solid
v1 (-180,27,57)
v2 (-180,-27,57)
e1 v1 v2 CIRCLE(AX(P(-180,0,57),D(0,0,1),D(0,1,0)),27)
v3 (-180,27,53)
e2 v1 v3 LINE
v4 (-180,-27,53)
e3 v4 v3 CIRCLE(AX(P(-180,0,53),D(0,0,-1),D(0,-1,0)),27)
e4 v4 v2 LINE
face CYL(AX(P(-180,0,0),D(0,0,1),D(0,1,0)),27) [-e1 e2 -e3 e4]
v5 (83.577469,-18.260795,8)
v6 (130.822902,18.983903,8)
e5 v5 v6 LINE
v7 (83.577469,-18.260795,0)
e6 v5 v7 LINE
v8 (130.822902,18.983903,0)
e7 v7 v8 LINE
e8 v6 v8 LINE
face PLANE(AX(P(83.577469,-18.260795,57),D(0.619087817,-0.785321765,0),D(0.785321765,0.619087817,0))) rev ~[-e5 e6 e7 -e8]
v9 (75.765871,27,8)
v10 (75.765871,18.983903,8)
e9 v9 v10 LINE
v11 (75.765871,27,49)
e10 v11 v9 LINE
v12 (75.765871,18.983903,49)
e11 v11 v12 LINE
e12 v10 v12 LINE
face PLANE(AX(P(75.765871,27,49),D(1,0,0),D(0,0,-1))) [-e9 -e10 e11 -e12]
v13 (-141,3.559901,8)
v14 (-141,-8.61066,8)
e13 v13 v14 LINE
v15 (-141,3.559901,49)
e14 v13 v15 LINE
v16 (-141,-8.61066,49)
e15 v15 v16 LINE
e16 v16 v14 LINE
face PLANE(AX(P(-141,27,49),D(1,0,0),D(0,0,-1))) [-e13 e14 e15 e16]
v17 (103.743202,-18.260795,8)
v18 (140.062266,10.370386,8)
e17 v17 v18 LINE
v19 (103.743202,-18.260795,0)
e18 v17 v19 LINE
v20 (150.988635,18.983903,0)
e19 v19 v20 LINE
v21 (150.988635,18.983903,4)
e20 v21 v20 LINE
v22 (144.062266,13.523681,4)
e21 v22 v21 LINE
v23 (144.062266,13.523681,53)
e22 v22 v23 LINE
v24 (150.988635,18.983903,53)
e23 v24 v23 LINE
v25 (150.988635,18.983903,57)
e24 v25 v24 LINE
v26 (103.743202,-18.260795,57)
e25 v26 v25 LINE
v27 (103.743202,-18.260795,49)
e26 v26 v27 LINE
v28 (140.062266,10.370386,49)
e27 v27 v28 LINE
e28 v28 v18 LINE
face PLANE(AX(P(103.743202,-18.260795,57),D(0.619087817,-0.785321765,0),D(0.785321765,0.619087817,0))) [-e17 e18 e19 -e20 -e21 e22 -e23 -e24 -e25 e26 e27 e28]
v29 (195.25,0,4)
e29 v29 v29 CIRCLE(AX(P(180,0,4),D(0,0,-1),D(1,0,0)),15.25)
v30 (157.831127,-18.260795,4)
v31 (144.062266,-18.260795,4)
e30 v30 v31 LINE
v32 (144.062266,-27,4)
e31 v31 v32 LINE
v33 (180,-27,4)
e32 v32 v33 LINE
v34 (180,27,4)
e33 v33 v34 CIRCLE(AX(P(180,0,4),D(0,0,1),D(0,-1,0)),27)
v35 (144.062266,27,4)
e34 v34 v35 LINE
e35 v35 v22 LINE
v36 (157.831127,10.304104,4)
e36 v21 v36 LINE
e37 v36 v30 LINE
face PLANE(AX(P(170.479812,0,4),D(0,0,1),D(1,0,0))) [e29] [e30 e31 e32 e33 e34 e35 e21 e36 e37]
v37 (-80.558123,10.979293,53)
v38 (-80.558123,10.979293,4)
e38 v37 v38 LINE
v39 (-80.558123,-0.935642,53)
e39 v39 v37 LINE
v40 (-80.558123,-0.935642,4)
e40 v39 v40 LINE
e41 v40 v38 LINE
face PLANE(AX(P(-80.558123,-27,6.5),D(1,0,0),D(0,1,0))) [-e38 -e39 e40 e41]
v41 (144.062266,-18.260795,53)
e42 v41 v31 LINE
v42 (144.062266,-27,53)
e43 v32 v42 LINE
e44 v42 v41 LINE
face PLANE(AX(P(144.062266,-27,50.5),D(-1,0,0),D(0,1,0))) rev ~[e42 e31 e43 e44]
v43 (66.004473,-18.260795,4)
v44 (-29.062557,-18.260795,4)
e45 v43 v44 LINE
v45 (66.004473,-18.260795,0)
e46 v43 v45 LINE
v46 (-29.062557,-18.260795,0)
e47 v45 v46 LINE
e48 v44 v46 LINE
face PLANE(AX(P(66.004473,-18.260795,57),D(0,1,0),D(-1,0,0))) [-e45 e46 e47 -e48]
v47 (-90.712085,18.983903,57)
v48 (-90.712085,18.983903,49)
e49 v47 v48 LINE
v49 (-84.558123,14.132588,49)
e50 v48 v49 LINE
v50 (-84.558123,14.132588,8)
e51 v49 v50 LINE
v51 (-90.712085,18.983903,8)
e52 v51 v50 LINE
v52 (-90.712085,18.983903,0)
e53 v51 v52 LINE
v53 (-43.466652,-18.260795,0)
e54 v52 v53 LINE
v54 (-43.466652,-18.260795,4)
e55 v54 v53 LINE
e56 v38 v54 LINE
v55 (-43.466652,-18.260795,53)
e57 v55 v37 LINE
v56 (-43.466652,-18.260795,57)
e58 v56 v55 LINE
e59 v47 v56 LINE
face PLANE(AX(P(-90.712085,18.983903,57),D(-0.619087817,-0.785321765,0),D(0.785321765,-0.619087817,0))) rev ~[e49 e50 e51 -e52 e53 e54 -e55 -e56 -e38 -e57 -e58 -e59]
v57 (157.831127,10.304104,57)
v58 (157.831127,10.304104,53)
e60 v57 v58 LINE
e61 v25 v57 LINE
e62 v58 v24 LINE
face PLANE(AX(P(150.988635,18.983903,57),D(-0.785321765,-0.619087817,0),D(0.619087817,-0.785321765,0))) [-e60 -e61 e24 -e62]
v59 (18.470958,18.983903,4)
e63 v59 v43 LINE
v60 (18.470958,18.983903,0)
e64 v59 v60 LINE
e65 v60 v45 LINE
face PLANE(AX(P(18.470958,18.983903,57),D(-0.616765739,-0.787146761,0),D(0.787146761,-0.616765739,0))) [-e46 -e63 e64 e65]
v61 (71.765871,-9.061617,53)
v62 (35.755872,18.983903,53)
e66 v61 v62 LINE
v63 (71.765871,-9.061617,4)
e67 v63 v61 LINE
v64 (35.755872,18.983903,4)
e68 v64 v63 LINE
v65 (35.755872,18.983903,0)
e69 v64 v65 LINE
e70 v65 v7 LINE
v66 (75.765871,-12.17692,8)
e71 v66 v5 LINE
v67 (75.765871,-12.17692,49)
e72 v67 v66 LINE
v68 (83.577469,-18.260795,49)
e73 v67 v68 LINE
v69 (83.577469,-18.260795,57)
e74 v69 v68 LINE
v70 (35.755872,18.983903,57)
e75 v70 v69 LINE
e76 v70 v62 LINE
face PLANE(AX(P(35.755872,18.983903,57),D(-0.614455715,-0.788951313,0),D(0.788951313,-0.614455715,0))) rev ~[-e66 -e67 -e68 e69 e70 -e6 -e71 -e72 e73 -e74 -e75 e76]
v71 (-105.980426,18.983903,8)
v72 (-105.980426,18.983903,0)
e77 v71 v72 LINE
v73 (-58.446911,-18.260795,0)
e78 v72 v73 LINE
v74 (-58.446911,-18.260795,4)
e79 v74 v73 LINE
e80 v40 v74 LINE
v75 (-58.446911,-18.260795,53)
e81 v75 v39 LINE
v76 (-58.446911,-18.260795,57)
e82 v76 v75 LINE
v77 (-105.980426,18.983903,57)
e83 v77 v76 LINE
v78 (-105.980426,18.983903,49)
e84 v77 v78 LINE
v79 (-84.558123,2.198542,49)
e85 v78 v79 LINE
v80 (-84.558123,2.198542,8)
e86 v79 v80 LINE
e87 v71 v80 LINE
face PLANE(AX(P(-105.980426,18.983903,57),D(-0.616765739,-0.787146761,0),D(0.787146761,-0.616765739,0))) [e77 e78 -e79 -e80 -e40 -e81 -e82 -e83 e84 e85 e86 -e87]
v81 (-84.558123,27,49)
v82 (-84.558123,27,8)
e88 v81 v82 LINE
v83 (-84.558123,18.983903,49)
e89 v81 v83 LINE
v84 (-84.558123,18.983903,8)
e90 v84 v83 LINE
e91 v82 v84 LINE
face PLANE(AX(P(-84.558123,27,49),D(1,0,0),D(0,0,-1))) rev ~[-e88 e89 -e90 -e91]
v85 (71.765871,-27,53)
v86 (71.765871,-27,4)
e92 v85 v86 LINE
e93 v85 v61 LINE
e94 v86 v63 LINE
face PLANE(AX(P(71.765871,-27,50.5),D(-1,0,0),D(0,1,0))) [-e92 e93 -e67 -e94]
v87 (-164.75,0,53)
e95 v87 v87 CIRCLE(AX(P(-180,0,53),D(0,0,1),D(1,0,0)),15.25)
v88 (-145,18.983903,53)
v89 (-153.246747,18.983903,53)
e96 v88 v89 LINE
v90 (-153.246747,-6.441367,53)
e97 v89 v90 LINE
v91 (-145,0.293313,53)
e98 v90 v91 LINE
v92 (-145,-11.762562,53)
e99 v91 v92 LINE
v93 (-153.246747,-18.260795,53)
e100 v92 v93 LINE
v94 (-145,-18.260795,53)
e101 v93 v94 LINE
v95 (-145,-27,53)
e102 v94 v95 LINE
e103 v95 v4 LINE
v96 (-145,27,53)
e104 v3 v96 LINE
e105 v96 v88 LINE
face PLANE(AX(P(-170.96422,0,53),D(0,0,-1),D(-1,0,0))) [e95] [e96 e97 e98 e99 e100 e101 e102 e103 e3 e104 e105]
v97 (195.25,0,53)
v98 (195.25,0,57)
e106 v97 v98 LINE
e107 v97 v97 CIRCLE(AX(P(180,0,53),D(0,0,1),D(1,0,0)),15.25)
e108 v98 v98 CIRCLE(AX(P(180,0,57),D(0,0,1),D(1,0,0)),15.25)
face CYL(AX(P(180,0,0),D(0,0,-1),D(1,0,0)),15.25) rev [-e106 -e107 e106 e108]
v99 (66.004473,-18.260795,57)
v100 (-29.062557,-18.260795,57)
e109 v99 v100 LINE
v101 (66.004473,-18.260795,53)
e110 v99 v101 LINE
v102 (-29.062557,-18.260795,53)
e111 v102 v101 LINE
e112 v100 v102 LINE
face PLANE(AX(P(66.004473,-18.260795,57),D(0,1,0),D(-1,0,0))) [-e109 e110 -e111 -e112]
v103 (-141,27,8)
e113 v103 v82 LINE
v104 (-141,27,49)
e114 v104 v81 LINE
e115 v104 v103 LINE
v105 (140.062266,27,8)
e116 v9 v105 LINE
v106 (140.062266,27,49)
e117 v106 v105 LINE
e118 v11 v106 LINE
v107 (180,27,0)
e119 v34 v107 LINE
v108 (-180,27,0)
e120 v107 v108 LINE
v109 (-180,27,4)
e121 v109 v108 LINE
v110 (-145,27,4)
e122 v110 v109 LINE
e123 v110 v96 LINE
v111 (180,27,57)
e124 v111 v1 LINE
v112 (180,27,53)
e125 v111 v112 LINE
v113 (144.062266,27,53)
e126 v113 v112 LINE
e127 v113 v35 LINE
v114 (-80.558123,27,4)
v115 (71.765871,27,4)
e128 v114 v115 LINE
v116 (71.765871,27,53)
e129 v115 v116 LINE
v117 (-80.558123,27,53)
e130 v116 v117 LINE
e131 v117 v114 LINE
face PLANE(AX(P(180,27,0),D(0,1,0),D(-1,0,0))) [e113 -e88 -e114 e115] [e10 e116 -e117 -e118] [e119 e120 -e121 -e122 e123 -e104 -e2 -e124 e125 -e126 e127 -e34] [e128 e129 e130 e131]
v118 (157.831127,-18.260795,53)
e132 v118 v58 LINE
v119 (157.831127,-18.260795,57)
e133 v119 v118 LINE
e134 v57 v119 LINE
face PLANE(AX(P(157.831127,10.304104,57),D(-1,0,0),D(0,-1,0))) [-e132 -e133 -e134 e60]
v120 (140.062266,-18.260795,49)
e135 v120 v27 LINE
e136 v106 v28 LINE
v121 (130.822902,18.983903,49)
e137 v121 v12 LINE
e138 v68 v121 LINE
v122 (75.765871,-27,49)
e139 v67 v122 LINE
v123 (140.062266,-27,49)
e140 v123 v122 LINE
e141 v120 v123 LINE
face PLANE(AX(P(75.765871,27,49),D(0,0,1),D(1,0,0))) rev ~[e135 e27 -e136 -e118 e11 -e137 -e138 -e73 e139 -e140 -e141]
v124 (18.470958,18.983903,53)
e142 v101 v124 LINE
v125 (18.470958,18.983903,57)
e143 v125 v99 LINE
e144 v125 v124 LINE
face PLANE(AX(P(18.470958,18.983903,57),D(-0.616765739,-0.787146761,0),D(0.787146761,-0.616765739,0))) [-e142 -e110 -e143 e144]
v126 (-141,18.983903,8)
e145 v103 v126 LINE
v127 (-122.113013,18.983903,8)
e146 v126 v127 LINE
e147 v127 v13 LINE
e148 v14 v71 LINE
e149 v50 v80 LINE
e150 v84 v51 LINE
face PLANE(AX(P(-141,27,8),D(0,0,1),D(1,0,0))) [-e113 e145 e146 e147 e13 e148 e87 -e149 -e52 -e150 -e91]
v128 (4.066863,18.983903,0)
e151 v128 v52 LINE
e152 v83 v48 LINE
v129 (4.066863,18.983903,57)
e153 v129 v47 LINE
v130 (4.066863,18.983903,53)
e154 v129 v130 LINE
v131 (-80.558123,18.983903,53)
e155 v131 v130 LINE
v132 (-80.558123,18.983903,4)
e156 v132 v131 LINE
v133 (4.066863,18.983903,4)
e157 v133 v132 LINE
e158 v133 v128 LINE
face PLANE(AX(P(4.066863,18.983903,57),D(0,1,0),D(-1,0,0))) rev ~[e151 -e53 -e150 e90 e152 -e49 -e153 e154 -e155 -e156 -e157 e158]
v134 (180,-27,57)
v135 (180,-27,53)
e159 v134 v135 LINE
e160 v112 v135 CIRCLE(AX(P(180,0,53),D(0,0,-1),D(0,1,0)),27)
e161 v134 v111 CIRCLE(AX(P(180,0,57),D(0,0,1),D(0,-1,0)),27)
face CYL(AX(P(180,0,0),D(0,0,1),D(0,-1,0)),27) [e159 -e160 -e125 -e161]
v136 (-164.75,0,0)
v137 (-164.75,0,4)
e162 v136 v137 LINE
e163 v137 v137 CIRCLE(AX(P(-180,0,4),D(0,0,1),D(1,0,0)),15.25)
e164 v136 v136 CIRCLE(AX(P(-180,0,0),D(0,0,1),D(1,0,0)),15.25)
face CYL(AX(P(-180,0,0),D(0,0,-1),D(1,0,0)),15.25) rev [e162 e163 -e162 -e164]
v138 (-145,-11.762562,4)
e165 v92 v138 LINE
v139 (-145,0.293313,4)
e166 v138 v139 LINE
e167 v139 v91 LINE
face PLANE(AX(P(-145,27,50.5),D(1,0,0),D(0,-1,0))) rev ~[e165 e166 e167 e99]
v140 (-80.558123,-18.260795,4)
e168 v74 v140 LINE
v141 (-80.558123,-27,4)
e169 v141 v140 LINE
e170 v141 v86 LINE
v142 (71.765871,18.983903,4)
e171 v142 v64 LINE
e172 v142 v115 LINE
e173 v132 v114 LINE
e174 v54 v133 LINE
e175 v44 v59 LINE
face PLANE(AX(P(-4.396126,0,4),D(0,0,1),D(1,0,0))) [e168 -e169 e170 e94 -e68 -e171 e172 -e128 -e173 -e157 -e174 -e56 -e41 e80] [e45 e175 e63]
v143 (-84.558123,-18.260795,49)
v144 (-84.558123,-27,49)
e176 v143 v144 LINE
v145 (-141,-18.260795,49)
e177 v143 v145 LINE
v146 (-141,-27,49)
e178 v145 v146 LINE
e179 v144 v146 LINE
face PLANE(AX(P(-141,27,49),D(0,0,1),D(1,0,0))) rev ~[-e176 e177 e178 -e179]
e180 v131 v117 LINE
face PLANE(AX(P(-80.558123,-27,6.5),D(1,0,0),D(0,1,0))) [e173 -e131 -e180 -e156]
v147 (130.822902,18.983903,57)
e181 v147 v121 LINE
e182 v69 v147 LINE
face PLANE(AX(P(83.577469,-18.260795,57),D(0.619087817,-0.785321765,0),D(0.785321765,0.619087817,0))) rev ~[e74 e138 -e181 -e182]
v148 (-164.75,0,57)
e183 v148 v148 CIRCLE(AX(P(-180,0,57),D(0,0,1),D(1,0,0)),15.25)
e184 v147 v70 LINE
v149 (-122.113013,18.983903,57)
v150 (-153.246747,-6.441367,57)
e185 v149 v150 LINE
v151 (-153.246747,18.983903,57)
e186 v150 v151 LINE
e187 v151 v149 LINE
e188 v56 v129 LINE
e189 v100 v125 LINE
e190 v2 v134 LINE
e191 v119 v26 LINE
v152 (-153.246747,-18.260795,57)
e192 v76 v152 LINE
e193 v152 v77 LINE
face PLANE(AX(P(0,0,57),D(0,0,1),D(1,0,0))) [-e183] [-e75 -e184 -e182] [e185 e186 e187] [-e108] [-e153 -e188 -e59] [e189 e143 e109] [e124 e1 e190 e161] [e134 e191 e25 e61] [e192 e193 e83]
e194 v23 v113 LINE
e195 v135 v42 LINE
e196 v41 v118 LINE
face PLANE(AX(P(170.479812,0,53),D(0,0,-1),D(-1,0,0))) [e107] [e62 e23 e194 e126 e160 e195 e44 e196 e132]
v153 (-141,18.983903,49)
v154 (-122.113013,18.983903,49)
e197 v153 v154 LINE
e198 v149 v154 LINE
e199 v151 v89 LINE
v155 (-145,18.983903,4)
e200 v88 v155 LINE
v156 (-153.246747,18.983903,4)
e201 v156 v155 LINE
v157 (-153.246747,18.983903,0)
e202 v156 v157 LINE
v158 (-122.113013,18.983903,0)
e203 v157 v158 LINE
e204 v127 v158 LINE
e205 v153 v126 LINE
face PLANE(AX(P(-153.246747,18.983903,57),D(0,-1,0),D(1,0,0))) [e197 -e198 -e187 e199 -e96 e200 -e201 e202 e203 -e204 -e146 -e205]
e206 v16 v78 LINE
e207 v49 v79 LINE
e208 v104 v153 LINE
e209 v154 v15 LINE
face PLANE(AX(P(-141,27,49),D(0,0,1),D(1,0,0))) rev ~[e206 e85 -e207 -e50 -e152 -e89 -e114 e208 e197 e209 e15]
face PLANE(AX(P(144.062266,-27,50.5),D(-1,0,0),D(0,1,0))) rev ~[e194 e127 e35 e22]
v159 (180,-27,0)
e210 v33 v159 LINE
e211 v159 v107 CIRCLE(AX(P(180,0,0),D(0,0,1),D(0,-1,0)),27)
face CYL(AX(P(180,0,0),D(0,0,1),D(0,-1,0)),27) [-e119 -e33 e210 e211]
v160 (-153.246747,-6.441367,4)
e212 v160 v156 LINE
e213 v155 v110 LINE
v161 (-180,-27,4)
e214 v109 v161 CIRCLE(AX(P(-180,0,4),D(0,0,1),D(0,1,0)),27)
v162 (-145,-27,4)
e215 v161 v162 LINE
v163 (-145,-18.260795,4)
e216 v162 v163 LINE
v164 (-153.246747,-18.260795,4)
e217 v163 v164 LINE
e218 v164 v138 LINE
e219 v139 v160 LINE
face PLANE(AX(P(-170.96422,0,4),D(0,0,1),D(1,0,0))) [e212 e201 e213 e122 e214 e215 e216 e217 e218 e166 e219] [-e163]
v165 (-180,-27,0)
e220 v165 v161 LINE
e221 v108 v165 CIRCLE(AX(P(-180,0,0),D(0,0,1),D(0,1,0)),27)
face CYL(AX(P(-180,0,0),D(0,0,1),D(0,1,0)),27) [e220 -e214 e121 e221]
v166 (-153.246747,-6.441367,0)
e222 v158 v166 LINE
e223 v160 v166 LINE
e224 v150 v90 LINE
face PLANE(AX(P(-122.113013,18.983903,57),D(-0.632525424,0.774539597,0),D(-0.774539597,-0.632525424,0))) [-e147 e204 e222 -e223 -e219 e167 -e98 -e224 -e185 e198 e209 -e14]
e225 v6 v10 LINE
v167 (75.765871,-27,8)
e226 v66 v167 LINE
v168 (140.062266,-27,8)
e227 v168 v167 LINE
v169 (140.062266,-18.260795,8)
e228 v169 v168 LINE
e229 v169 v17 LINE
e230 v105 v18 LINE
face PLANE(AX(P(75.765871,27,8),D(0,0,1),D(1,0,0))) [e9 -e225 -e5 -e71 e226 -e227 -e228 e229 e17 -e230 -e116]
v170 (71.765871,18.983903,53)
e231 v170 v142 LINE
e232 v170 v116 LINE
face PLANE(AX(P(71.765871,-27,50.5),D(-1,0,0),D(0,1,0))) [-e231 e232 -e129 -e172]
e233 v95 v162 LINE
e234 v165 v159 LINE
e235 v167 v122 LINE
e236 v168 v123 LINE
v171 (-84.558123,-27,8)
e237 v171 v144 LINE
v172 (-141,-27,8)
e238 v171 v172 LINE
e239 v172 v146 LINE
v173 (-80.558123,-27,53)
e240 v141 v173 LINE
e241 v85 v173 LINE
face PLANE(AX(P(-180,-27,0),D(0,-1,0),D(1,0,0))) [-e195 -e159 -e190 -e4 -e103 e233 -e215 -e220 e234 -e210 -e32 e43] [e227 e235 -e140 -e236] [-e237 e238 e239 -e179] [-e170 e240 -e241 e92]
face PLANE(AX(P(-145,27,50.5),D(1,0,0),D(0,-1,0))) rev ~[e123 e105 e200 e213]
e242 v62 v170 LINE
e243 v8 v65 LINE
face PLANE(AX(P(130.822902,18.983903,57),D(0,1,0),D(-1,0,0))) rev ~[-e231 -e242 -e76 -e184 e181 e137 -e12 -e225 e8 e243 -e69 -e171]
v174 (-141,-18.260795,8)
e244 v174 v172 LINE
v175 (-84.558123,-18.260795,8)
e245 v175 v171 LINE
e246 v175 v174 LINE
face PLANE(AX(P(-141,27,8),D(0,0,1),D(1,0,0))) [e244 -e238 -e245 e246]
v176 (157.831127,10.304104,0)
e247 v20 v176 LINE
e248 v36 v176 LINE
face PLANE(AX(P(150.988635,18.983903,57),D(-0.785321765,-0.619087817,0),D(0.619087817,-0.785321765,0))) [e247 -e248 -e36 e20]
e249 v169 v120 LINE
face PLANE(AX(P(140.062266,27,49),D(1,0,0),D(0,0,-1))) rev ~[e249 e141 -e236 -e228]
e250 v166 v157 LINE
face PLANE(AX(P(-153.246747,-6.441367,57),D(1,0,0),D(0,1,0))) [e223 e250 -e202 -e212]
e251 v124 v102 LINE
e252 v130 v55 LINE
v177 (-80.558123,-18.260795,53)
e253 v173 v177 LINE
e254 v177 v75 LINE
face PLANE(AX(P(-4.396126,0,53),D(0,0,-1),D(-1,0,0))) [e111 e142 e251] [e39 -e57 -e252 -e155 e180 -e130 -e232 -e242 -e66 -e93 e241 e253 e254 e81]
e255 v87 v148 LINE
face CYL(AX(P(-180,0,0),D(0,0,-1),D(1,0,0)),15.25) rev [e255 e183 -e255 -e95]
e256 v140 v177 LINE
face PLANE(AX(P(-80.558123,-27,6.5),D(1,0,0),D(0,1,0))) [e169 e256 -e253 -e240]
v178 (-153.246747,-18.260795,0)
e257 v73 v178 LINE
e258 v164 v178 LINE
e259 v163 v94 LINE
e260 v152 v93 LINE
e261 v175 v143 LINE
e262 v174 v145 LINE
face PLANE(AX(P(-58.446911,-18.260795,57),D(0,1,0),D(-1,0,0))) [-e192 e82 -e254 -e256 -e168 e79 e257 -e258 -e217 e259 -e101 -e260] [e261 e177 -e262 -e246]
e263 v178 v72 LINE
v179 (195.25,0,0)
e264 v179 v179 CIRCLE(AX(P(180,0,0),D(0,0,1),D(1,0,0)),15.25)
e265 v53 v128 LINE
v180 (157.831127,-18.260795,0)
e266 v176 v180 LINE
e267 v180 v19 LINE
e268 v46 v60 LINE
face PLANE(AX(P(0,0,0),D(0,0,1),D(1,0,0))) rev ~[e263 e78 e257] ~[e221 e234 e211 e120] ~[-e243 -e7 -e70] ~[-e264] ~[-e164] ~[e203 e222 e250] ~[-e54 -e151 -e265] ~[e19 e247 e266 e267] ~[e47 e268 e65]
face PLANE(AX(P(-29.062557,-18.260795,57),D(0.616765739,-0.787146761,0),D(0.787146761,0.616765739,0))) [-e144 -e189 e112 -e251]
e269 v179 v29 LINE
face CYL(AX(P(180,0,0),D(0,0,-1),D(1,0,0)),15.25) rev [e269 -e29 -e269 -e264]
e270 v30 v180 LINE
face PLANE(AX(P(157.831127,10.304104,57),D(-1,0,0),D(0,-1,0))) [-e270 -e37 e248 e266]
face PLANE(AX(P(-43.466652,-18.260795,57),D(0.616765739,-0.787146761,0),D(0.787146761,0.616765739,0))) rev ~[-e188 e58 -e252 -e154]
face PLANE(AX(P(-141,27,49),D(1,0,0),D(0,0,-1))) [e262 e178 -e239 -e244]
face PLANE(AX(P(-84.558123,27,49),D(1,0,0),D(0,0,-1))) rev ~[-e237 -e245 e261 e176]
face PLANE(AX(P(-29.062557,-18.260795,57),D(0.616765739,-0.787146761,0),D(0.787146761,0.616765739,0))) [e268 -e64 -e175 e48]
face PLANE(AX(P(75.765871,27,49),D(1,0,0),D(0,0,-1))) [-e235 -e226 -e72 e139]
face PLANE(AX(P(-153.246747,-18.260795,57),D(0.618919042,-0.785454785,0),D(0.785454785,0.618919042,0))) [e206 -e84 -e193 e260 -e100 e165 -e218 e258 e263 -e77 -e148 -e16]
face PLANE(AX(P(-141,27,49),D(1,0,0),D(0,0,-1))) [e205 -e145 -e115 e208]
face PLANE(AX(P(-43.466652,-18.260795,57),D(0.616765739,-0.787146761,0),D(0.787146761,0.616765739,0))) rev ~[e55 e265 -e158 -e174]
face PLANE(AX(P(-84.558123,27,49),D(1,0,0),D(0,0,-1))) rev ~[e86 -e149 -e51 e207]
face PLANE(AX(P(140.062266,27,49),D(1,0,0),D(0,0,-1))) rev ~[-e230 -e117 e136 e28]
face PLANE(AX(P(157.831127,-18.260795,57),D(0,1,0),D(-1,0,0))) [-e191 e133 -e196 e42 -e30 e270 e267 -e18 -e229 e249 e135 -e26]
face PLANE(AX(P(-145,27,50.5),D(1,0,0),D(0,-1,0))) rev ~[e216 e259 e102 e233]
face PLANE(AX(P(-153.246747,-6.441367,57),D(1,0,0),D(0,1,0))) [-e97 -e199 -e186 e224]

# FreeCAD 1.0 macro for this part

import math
import FreeCAD as App
import Part
import Sketcher

V = App.Vector
Q = App.Units.Quantity

doc = App.newDocument("Part")
body = doc.addObject("PartDesign::Body", "Body")

# Sketch on XY plane
sketch1 = body.newObject("Sketcher::SketchObject", "Sketch")
sketch1.AttachmentSupport = (doc.getObject("XY_Plane"), [""])
sketch1.MapMode = "FlatFace"
sketch1.addGeometry(Part.LineSegment(V(-180, -35, 0), V(180, -35, 0)), False)
sketch1.addGeometry(Part.ArcOfCircle(Part.Circle(V(180, 0, 0), V(0, 0, 1), 35), math.radians(-90), math.radians(90)), False)
sketch1.addGeometry(Part.LineSegment(V(180, 35, 0), V(-180, 35, 0)), False)
sketch1.addGeometry(Part.ArcOfCircle(Part.Circle(V(-180, 0, 0), V(0, 0, 1), 35), math.radians(90), math.radians(270)), False)
sketch1.addGeometry(Part.Circle(V(-180, 0, 0), V(0, 0, 1), 15), False)
sketch1.addGeometry(Part.Circle(V(180, 0, 0), V(0, 0, 1), 15), False)
sketch1.addConstraint(Sketcher.Constraint("Tangent", 0, 2, 1, 1))
sketch1.addConstraint(Sketcher.Constraint("Tangent", 1, 2, 2, 1))
sketch1.addConstraint(Sketcher.Constraint("Tangent", 2, 2, 3, 1))
sketch1.addConstraint(Sketcher.Constraint("Tangent", 3, 2, 0, 1))
sketch1.addConstraint(Sketcher.Constraint("Horizontal", 0))
sketch1.addConstraint(Sketcher.Constraint("Horizontal", 2))
sketch1.addConstraint(Sketcher.Constraint("Coincident", 4, 3, 3, 3))
sketch1.addConstraint(Sketcher.Constraint("Coincident", 5, 3, 1, 3))
sketch1.addConstraint(Sketcher.Constraint("Equal", 4, 5))
sketch1.addConstraint(Sketcher.Constraint("Symmetric", 1, 3, 3, 3, -1, 1))
sketch1.addConstraint(Sketcher.Constraint("Radius", 1, Q("35 mm")))
sketch1.addConstraint(Sketcher.Constraint("Diameter", 4, Q("30.5 mm")))
sketch1.addConstraint(Sketcher.Constraint("DistanceX", 0, 1, 0, 2, Q("360 mm")))
pad1 = body.newObject("PartDesign::Pad", "Pad")
pad1.Profile = sketch1
pad1.Length = 57

# Sketch on XZ plane
sketch2 = body.newObject("Sketcher::SketchObject", "Sketch001")
sketch2.AttachmentSupport = (doc.getObject("XZ_Plane"), [""])
sketch2.MapMode = "FlatFace"
sketch2.addGeometry(Part.LineSegment(V(-215, 6, 0), V(-215, 50, 0)), False)
sketch2.addGeometry(Part.LineSegment(V(-215, 50, 0), V(-145, 50, 0)), False)
sketch2.addGeometry(Part.LineSegment(V(-145, 50, 0), V(-145, 6, 0)), False)
sketch2.addGeometry(Part.LineSegment(V(-145, 6, 0), V(-215, 6, 0)), False)
sketch2.addGeometry(Part.LineSegment(V(144, 6, 0), V(144, 50, 0)), False)
sketch2.addGeometry(Part.LineSegment(V(144, 50, 0), V(214, 50, 0)), False)
sketch2.addGeometry(Part.LineSegment(V(214, 50, 0), V(214, 6, 0)), False)
sketch2.addGeometry(Part.LineSegment(V(214, 6, 0), V(144, 6, 0)), False)
sketch2.addGeometry(Part.LineSegment(V(-81, 6, 0), V(-81, 50, 0)), False)
sketch2.addGeometry(Part.LineSegment(V(-81, 50, 0), V(72, 50, 0)), False)
sketch2.addGeometry(Part.LineSegment(V(72, 50, 0), V(72, 6, 0)), False)
sketch2.addGeometry(Part.LineSegment(V(72, 6, 0), V(-81, 6, 0)), False)
sketch2.addConstraint(Sketcher.Constraint("Coincident", 0, 2, 1, 1))
sketch2.addConstraint(Sketcher.Constraint("Coincident", 1, 2, 2, 1))
sketch2.addConstraint(Sketcher.Constraint("Coincident", 2, 2, 3, 1))
sketch2.addConstraint(Sketcher.Constraint("Coincident", 3, 2, 0, 1))
sketch2.addConstraint(Sketcher.Constraint("Coincident", 4, 2, 5, 1))
sketch2.addConstraint(Sketcher.Constraint("Coincident", 5, 2, 6, 1))
sketch2.addConstraint(Sketcher.Constraint("Coincident", 6, 2, 7, 1))
sketch2.addConstraint(Sketcher.Constraint("Coincident", 7, 2, 4, 1))
sketch2.addConstraint(Sketcher.Constraint("Coincident", 8, 2, 9, 1))
sketch2.addConstraint(Sketcher.Constraint("Coincident", 9, 2, 10, 1))
sketch2.addConstraint(Sketcher.Constraint("Coincident", 10, 2, 11, 1))
sketch2.addConstraint(Sketcher.Constraint("Coincident", 11, 2, 8, 1))
sketch2.addConstraint(Sketcher.Constraint("Vertical", 0))
sketch2.addConstraint(Sketcher.Constraint("Horizontal", 1))
sketch2.addConstraint(Sketcher.Constraint("Vertical", 2))
sketch2.addConstraint(Sketcher.Constraint("Horizontal", 3))
sketch2.addConstraint(Sketcher.Constraint("Vertical", 4))
sketch2.addConstraint(Sketcher.Constraint("Horizontal", 5))
sketch2.addConstraint(Sketcher.Constraint("Vertical", 6))
sketch2.addConstraint(Sketcher.Constraint("Horizontal", 7))
sketch2.addConstraint(Sketcher.Constraint("Vertical", 8))
sketch2.addConstraint(Sketcher.Constraint("Horizontal", 9))
sketch2.addConstraint(Sketcher.Constraint("Vertical", 10))
sketch2.addConstraint(Sketcher.Constraint("Horizontal", 11))
sketch2.addConstraint(Sketcher.Constraint("Horizontal", 1, 2, 4, 2))
sketch2.addConstraint(Sketcher.Constraint("Horizontal", 3, 2, 6, 2))
sketch2.addConstraint(Sketcher.Constraint("Horizontal", 5, 2, 8, 2))
sketch2.addConstraint(Sketcher.Constraint("Horizontal", 7, 2, 10, 2))
sketch2.addConstraint(Sketcher.Constraint("Equal", 3, 5))
sketch2.addConstraint(Sketcher.Constraint("DistanceX", 1, 1, 1, 2, Q("70 mm")))
sketch2.addConstraint(Sketcher.Constraint("DistanceY", 0, 1, 0, 2, Q("44 mm")))
sketch2.addConstraint(Sketcher.Constraint("DistanceX", 0, 2, -1, 1, Q("215 mm")))
sketch2.addConstraint(Sketcher.Constraint("DistanceY", -1, 1, 0, 2, Q("50.5 mm")))
sketch2.addConstraint(Sketcher.Constraint("DistanceX", 9, 1, 9, 2, Q("152.323994 mm")))
sketch2.addConstraint(Sketcher.Constraint("DistanceX", -1, 1, 9, 2, Q("71.765871 mm")))
sketch2.addConstraint(Sketcher.Constraint("DistanceX", 8, 2, 4, 2, Q("224.620389 mm")))
pocket1 = body.newObject("PartDesign::Pocket", "Pocket")
pocket1.Profile = sketch2
pocket1.Length = 80
pocket1.Midplane = True

# Sketch on XY plane
sketch3 = body.newObject("Sketcher::SketchObject", "Sketch002")
sketch3.AttachmentSupport = (doc.getObject("XY_Plane"), [""])
sketch3.MapMode = "FlatFace"
sketch3.addGeometry(Part.LineSegment(V(-180, -35, 0), V(180, -35, 0)), False)
sketch3.addGeometry(Part.ArcOfCircle(Part.Circle(V(180, 0, 0), V(0, 0, 1), 35), math.radians(-90), math.radians(90)), False)
sketch3.addGeometry(Part.LineSegment(V(180, 35, 0), V(-180, 35, 0)), False)
sketch3.addGeometry(Part.ArcOfCircle(Part.Circle(V(-180, 0, 0), V(0, 0, 1), 35), math.radians(90), math.radians(270)), False)
sketch3.addGeometry(Part.LineSegment(V(180, -27, 0), V(-180, -27, 0)), False)
sketch3.addGeometry(Part.ArcOfCircle(Part.Circle(V(-180, 0, 0), V(0, 0, 1), 27), math.radians(90), math.radians(270)), False)
sketch3.addGeometry(Part.LineSegment(V(-180, 27, 0), V(180, 27, 0)), False)
sketch3.addGeometry(Part.ArcOfCircle(Part.Circle(V(180, 0, 0), V(0, 0, 1), 27), math.radians(-90), math.radians(90)), False)
sketch3.addConstraint(Sketcher.Constraint("Tangent", 0, 2, 1, 1))
sketch3.addConstraint(Sketcher.Constraint("Tangent", 1, 2, 2, 1))
sketch3.addConstraint(Sketcher.Constraint("Tangent", 2, 2, 3, 1))
sketch3.addConstraint(Sketcher.Constraint("Tangent", 3, 2, 0, 1))
sketch3.addConstraint(Sketcher.Constraint("Tangent", 4, 2, 5, 2))
sketch3.addConstraint(Sketcher.Constraint("Tangent", 5, 1, 6, 1))
sketch3.addConstraint(Sketcher.Constraint("Tangent", 6, 2, 7, 2))
sketch3.addConstraint(Sketcher.Constraint("Tangent", 7, 1, 4, 1))
sketch3.addConstraint(Sketcher.Constraint("Horizontal", 0))
sketch3.addConstraint(Sketcher.Constraint("Horizontal", 2))
sketch3.addConstraint(Sketcher.Constraint("Horizontal", 4))
sketch3.addConstraint(Sketcher.Constraint("Horizontal", 6))
sketch3.addConstraint(Sketcher.Constraint("Coincident", 5, 3, 3, 3))
sketch3.addConstraint(Sketcher.Constraint("Symmetric", 1, 3, 3, 3, -1, 1))
sketch3.addConstraint(Sketcher.Constraint("Vertical", 7, 3, 0, 2))
sketch3.addConstraint(Sketcher.Constraint("Radius", 1, Q("35 mm")))
sketch3.addConstraint(Sketcher.Constraint("Radius", 5, Q("27 mm")))
sketch3.addConstraint(Sketcher.Constraint("DistanceX", 0, 1, 0, 2, Q("360 mm")))
pocket2 = body.newObject("PartDesign::Pocket", "Pocket001")
pocket2.Profile = sketch3
pocket2.Length = 150
pocket2.Midplane = True

# Sketch on XY plane
sketch4 = body.newObject("Sketcher::SketchObject", "Sketch003")
sketch4.AttachmentSupport = (doc.getObject("XY_Plane"), [""])
sketch4.MapMode = "FlatFace"
sketch4.AttachmentOffset = App.Placement(V(0, 0, 6.5), App.Rotation())
sketch4.addGeometry(Part.LineSegment(V(-145, 27, 0), V(-180, 27, 0)), False)
sketch4.addGeometry(Part.ArcOfCircle(Part.Circle(V(-180, 0, 0), V(0, 0, 1), 27), math.radians(90), math.radians(270)), False)
sketch4.addGeometry(Part.LineSegment(V(-180, -27, 0), V(-145, -27, 0)), False)
sketch4.addGeometry(Part.LineSegment(V(-145, -27, 0), V(-145, 27, 0)), False)
sketch4.addGeometry(Part.Circle(V(-180, 0, 0), V(0, 0, 1), 15), False)
sketch4.addConstraint(Sketcher.Constraint("Tangent", 0, 2, 1, 1))
sketch4.addConstraint(Sketcher.Constraint("Tangent", 1, 2, 2, 1))
sketch4.addConstraint(Sketcher.Constraint("Coincident", 2, 2, 3, 1))
sketch4.addConstraint(Sketcher.Constraint("Coincident", 3, 2, 0, 1))
sketch4.addConstraint(Sketcher.Constraint("Horizontal", 0))
sketch4.addConstraint(Sketcher.Constraint("Horizontal", 2))
sketch4.addConstraint(Sketcher.Constraint("Vertical", 3))
sketch4.addConstraint(Sketcher.Constraint("Coincident", 4, 3, 1, 3))
sketch4.addConstraint(Sketcher.Constraint("PointOnObject", 1, 3, -1))
sketch4.addConstraint(Sketcher.Constraint("Radius", 1, Q("27 mm")))
sketch4.addConstraint(Sketcher.Constraint("Diameter", 4, Q("30.5 mm")))
sketch4.addConstraint(Sketcher.Constraint("DistanceX", 0, 2, 0, 1, Q("35 mm")))
sketch4.addConstraint(Sketcher.Constraint("DistanceX", 1, 3, -1, 1, Q("180 mm")))
pocket3 = body.newObject("PartDesign::Pocket", "Pocket002")
pocket3.Profile = sketch4
pocket3.Length = 2.5

# Sketch on XY plane
sketch5 = body.newObject("Sketcher::SketchObject", "Sketch004")
sketch5.AttachmentSupport = (doc.getObject("XY_Plane"), [""])
sketch5.MapMode = "FlatFace"
sketch5.AttachmentOffset = App.Placement(V(0, 0, 50.5), App.Rotation())
sketch5.addGeometry(Part.LineSegment(V(-180, 27, 0), V(-145, 27, 0)), False)
sketch5.addGeometry(Part.LineSegment(V(-145, 27, 0), V(-145, -27, 0)), False)
sketch5.addGeometry(Part.LineSegment(V(-145, -27, 0), V(-180, -27, 0)), False)
sketch5.addGeometry(Part.ArcOfCircle(Part.Circle(V(-180, 0, 0), V(0, 0, 1), 27), math.radians(90), math.radians(270)), False)
sketch5.addGeometry(Part.Circle(V(-180, 0, 0), V(0, 0, 1), 15), False)
sketch5.addConstraint(Sketcher.Constraint("Coincident", 0, 2, 1, 1))
sketch5.addConstraint(Sketcher.Constraint("Coincident", 1, 2, 2, 1))
sketch5.addConstraint(Sketcher.Constraint("Tangent", 2, 2, 3, 2))
sketch5.addConstraint(Sketcher.Constraint("Tangent", 3, 1, 0, 1))
sketch5.addConstraint(Sketcher.Constraint("Horizontal", 0))
sketch5.addConstraint(Sketcher.Constraint("Vertical", 1))
sketch5.addConstraint(Sketcher.Constraint("Horizontal", 2))
sketch5.addConstraint(Sketcher.Constraint("Coincident", 4, 3, 3, 3))
sketch5.addConstraint(Sketcher.Constraint("PointOnObject", 3, 3, -1))
sketch5.addConstraint(Sketcher.Constraint("Radius", 3, Q("27 mm")))
sketch5.addConstraint(Sketcher.Constraint("Diameter", 4, Q("30.5 mm")))
sketch5.addConstraint(Sketcher.Constraint("DistanceX", 0, 1, 0, 2, Q("35 mm")))
sketch5.addConstraint(Sketcher.Constraint("DistanceX", 3, 3, -1, 1, Q("180 mm")))
pocket4 = body.newObject("PartDesign::Pocket", "Pocket003")
pocket4.Profile = sketch5
pocket4.Length = 2.5
pocket4.Reversed = True

# Sketch on XY plane
sketch6 = body.newObject("Sketcher::SketchObject", "Sketch005")
sketch6.AttachmentSupport = (doc.getObject("XY_Plane"), [""])
sketch6.MapMode = "FlatFace"
sketch6.AttachmentOffset = App.Placement(V(0, 0, 6.5), App.Rotation())
sketch6.addGeometry(Part.LineSegment(V(180, 27, 0), V(144, 27, 0)), False)
sketch6.addGeometry(Part.LineSegment(V(144, 27, 0), V(144, -27, 0)), False)
sketch6.addGeometry(Part.LineSegment(V(144, -27, 0), V(180, -27, 0)), False)
sketch6.addGeometry(Part.ArcOfCircle(Part.Circle(V(180, 0, 0), V(0, 0, 1), 27), math.radians(-90), math.radians(90)), False)
sketch6.addGeometry(Part.Circle(V(180, 0, 0), V(0, 0, 1), 15), False)
sketch6.addConstraint(Sketcher.Constraint("Coincident", 0, 2, 1, 1))
sketch6.addConstraint(Sketcher.Constraint("Coincident", 1, 2, 2, 1))
sketch6.addConstraint(Sketcher.Constraint("Tangent", 2, 2, 3, 1))
sketch6.addConstraint(Sketcher.Constraint("Tangent", 3, 2, 0, 1))
sketch6.addConstraint(Sketcher.Constraint("Horizontal", 0))
sketch6.addConstraint(Sketcher.Constraint("Vertical", 1))
sketch6.addConstraint(Sketcher.Constraint("Horizontal", 2))
sketch6.addConstraint(Sketcher.Constraint("Coincident", 4, 3, 3, 3))
sketch6.addConstraint(Sketcher.Constraint("PointOnObject", 3, 3, -1))
sketch6.addConstraint(Sketcher.Constraint("Radius", 3, Q("27 mm")))
sketch6.addConstraint(Sketcher.Constraint("DistanceX", -1, 1, 3, 3, Q("180 mm")))
sketch6.addConstraint(Sketcher.Constraint("Diameter", 4, Q("30.167118 mm")))
sketch6.addConstraint(Sketcher.Constraint("DistanceX", 0, 2, 0, 1, Q("35.937734 mm")))
pocket5 = body.newObject("PartDesign::Pocket", "Pocket004")
pocket5.Profile = sketch6
pocket5.Length = 2.5

# Sketch on XY plane
sketch7 = body.newObject("Sketcher::SketchObject", "Sketch006")
sketch7.AttachmentSupport = (doc.getObject("XY_Plane"), [""])
sketch7.MapMode = "FlatFace"
sketch7.AttachmentOffset = App.Placement(V(0, 0, 50.5), App.Rotation())
sketch7.addGeometry(Part.LineSegment(V(180, -27, 0), V(144, -27, 0)), False)
sketch7.addGeometry(Part.LineSegment(V(144, -27, 0), V(144, 27, 0)), False)
sketch7.addGeometry(Part.LineSegment(V(144, 27, 0), V(180, 27, 0)), False)
sketch7.addGeometry(Part.ArcOfCircle(Part.Circle(V(180, 0, 0), V(0, 0, 1), 27), math.radians(-90), math.radians(90)), False)
sketch7.addGeometry(Part.Circle(V(180, 0, 0), V(0, 0, 1), 15), False)
sketch7.addConstraint(Sketcher.Constraint("Coincident", 0, 2, 1, 1))
sketch7.addConstraint(Sketcher.Constraint("Coincident", 1, 2, 2, 1))
sketch7.addConstraint(Sketcher.Constraint("Tangent", 2, 2, 3, 2))
sketch7.addConstraint(Sketcher.Constraint("Tangent", 3, 1, 0, 1))
sketch7.addConstraint(Sketcher.Constraint("Horizontal", 0))
sketch7.addConstraint(Sketcher.Constraint("Vertical", 1))
sketch7.addConstraint(Sketcher.Constraint("Horizontal", 2))
sketch7.addConstraint(Sketcher.Constraint("Coincident", 4, 3, 3, 3))
sketch7.addConstraint(Sketcher.Constraint("PointOnObject", 3, 3, -1))
sketch7.addConstraint(Sketcher.Constraint("Radius", 3, Q("27 mm")))
sketch7.addConstraint(Sketcher.Constraint("Diameter", 4, Q("30.5 mm")))
sketch7.addConstraint(Sketcher.Constraint("DistanceX", -1, 1, 3, 3, Q("180 mm")))
sketch7.addConstraint(Sketcher.Constraint("DistanceX", 0, 2, 0, 1, Q("35.937734 mm")))
pocket6 = body.newObject("PartDesign::Pocket", "Pocket005")
pocket6.Profile = sketch7
pocket6.Length = 2.5
pocket6.Reversed = True

# Sketch on XY plane
sketch8 = body.newObject("Sketcher::SketchObject", "Sketch007")
sketch8.AttachmentSupport = (doc.getObject("XY_Plane"), [""])
sketch8.MapMode = "FlatFace"
sketch8.AttachmentOffset = App.Placement(V(0, 0, 50.5), App.Rotation())
sketch8.addGeometry(Part.LineSegment(V(72, 27, 0), V(72, -27, 0)), False)
sketch8.addGeometry(Part.LineSegment(V(72, -27, 0), V(-81, -27, 0)), False)
sketch8.addGeometry(Part.LineSegment(V(-81, -27, 0), V(-81, 27, 0)), False)
sketch8.addGeometry(Part.LineSegment(V(-81, 27, 0), V(72, 27, 0)), False)
sketch8.addConstraint(Sketcher.Constraint("Coincident", 0, 2, 1, 1))
sketch8.addConstraint(Sketcher.Constraint("Coincident", 1, 2, 2, 1))
sketch8.addConstraint(Sketcher.Constraint("Coincident", 2, 2, 3, 1))
sketch8.addConstraint(Sketcher.Constraint("Coincident", 3, 2, 0, 1))
sketch8.addConstraint(Sketcher.Constraint("Vertical", 0))
sketch8.addConstraint(Sketcher.Constraint("Horizontal", 1))
sketch8.addConstraint(Sketcher.Constraint("Vertical", 2))
sketch8.addConstraint(Sketcher.Constraint("Horizontal", 3))
sketch8.addConstraint(Sketcher.Constraint("DistanceY", 0, 2, 0, 1, Q("54 mm")))
sketch8.addConstraint(Sketcher.Constraint("DistanceY", 0, 2, -1, 1, Q("27 mm")))
sketch8.addConstraint(Sketcher.Constraint("DistanceX", 1, 2, 1, 1, Q("152.323994 mm")))
sketch8.addConstraint(Sketcher.Constraint("DistanceX", -1, 1, 0, 2, Q("71.765871 mm")))
pocket7 = body.newObject("PartDesign::Pocket", "Pocket006")
pocket7.Profile = sketch8
pocket7.Length = 2.5
pocket7.Reversed = True

# Sketch on XY plane
sketch9 = body.newObject("Sketcher::SketchObject", "Sketch008")
sketch9.AttachmentSupport = (doc.getObject("XY_Plane"), [""])
sketch9.MapMode = "FlatFace"
sketch9.AttachmentOffset = App.Placement(V(0, 0, 6.5), App.Rotation())
sketch9.addGeometry(Part.LineSegment(V(-81, 27, 0), V(-81, -27, 0)), False)
sketch9.addGeometry(Part.LineSegment(V(-81, -27, 0), V(72, -27, 0)), False)
sketch9.addGeometry(Part.LineSegment(V(72, -27, 0), V(72, 27, 0)), False)
sketch9.addGeometry(Part.LineSegment(V(72, 27, 0), V(-81, 27, 0)), False)
sketch9.addConstraint(Sketcher.Constraint("Coincident", 0, 2, 1, 1))
sketch9.addConstraint(Sketcher.Constraint("Coincident", 1, 2, 2, 1))
sketch9.addConstraint(Sketcher.Constraint("Coincident", 2, 2, 3, 1))
sketch9.addConstraint(Sketcher.Constraint("Coincident", 3, 2, 0, 1))
sketch9.addConstraint(Sketcher.Constraint("Vertical", 0))
sketch9.addConstraint(Sketcher.Constraint("Horizontal", 1))
sketch9.addConstraint(Sketcher.Constraint("Vertical", 2))
sketch9.addConstraint(Sketcher.Constraint("Horizontal", 3))
sketch9.addConstraint(Sketcher.Constraint("DistanceY", 0, 2, 0, 1, Q("54 mm")))
sketch9.addConstraint(Sketcher.Constraint("DistanceY", 0, 2, -1, 1, Q("27 mm")))
sketch9.addConstraint(Sketcher.Constraint("DistanceX", 1, 1, 1, 2, Q("152.323994 mm")))
sketch9.addConstraint(Sketcher.Constraint("DistanceX", -1, 1, 1, 2, Q("71.765871 mm")))
pocket8 = body.newObject("PartDesign::Pocket", "Pocket007")
pocket8.Profile = sketch9
pocket8.Length = 2.5

# Sketch on XZ plane
sketch10 = body.newObject("Sketcher::SketchObject", "Sketch009")
sketch10.AttachmentSupport = (doc.getObject("XZ_Plane"), [""])
sketch10.MapMode = "FlatFace"
sketch10.AttachmentOffset = App.Placement(V(0, 0, -27), App.Rotation())
sketch10.addGeometry(Part.LineSegment(V(-141, 8, 0), V(-141, 49, 0)), False)
sketch10.addGeometry(Part.LineSegment(V(-141, 49, 0), V(-85, 49, 0)), False)
sketch10.addGeometry(Part.LineSegment(V(-85, 49, 0), V(-85, 8, 0)), False)
sketch10.addGeometry(Part.LineSegment(V(-85, 8, 0), V(-141, 8, 0)), False)
sketch10.addConstraint(Sketcher.Constraint("Coincident", 0, 2, 1, 1))
sketch10.addConstraint(Sketcher.Constraint("Coincident", 1, 2, 2, 1))
sketch10.addConstraint(Sketcher.Constraint("Coincident", 2, 2, 3, 1))
sketch10.addConstraint(Sketcher.Constraint("Coincident", 3, 2, 0, 1))
sketch10.addConstraint(Sketcher.Constraint("Vertical", 0))
sketch10.addConstraint(Sketcher.Constraint("Horizontal", 1))
sketch10.addConstraint(Sketcher.Constraint("Vertical", 2))
sketch10.addConstraint(Sketcher.Constraint("Horizontal", 3))
sketch10.addConstraint(Sketcher.Constraint("DistanceY", 0, 1, 0, 2, Q("41 mm")))
sketch10.addConstraint(Sketcher.Constraint("DistanceX", 0, 2, -1, 1, Q("141 mm")))
sketch10.addConstraint(Sketcher.Constraint("DistanceY", -1, 1, 0, 2, Q("49 mm")))
sketch10.addConstraint(Sketcher.Constraint("DistanceX", 1, 1, 1, 2, Q("56.441877 mm")))
pocket9 = body.newObject("PartDesign::Pocket", "Pocket008")
pocket9.Profile = sketch10
pocket9.Length = 70
pocket9.Reversed = True

# Sketch on XZ plane
sketch11 = body.newObject("Sketcher::SketchObject", "Sketch010")
sketch11.AttachmentSupport = (doc.getObject("XZ_Plane"), [""])
sketch11.MapMode = "FlatFace"
sketch11.AttachmentOffset = App.Placement(V(0, 0, -27), App.Rotation())
sketch11.addGeometry(Part.LineSegment(V(76, 8, 0), V(76, 49, 0)), False)
sketch11.addGeometry(Part.LineSegment(V(76, 49, 0), V(140, 49, 0)), False)
sketch11.addGeometry(Part.LineSegment(V(140, 49, 0), V(140, 8, 0)), False)
sketch11.addGeometry(Part.LineSegment(V(140, 8, 0), V(76, 8, 0)), False)
sketch11.addConstraint(Sketcher.Constraint("Coincident", 0, 2, 1, 1))
sketch11.addConstraint(Sketcher.Constraint("Coincident", 1, 2, 2, 1))
sketch11.addConstraint(Sketcher.Constraint("Coincident", 2, 2, 3, 1))
sketch11.addConstraint(Sketcher.Constraint("Coincident", 3, 2, 0, 1))
sketch11.addConstraint(Sketcher.Constraint("Vertical", 0))
sketch11.addConstraint(Sketcher.Constraint("Horizontal", 1))
sketch11.addConstraint(Sketcher.Constraint("Vertical", 2))
sketch11.addConstraint(Sketcher.Constraint("Horizontal", 3))
sketch11.addConstraint(Sketcher.Constraint("DistanceY", 0, 1, 0, 2, Q("41 mm")))
sketch11.addConstraint(Sketcher.Constraint("DistanceY", -1, 1, 0, 2, Q("49 mm")))
sketch11.addConstraint(Sketcher.Constraint("DistanceX", 1, 1, 1, 2, Q("64.296395 mm")))
sketch11.addConstraint(Sketcher.Constraint("DistanceX", -1, 1, 0, 2, Q("75.765871 mm")))
pocket10 = body.newObject("PartDesign::Pocket", "Pocket009")
pocket10.Profile = sketch11
pocket10.Length = 70
pocket10.Reversed = True

# Sketch on XY plane
sketch12 = body.newObject("Sketcher::SketchObject", "Sketch011")
sketch12.AttachmentSupport = (doc.getObject("XY_Plane"), [""])
sketch12.MapMode = "FlatFace"
sketch12.AttachmentOffset = App.Placement(V(0, 0, 57), App.Rotation())
sketch12.addGeometry(Part.LineSegment(V(-106, 19, 0), V(-153, -18, 0)), False)
sketch12.addGeometry(Part.LineSegment(V(-153, -18, 0), V(-58, -18, 0)), False)
sketch12.addGeometry(Part.LineSegment(V(-58, -18, 0), V(-106, 19, 0)), False)
sketch12.addGeometry(Part.LineSegment(V(-122, 19, 0), V(-153, 19, 0)), False)
sketch12.addGeometry(Part.LineSegment(V(-153, 19, 0), V(-153, -6, 0)), False)
sketch12.addGeometry(Part.LineSegment(V(-153, -6, 0), V(-122, 19, 0)), False)
sketch12.addGeometry(Part.LineSegment(V(158, -18, 0), V(158, 10, 0)), False)
sketch12.addGeometry(Part.LineSegment(V(158, 10, 0), V(151, 19, 0)), False)
sketch12.addGeometry(Part.LineSegment(V(151, 19, 0), V(104, -18, 0)), False)
sketch12.addGeometry(Part.LineSegment(V(104, -18, 0), V(158, -18, 0)), False)
sketch12.addGeometry(Part.LineSegment(V(-91, 19, 0), V(-43, -18, 0)), False)
sketch12.addGeometry(Part.LineSegment(V(-43, -18, 0), V(4, 19, 0)), False)
sketch12.addGeometry(Part.LineSegment(V(4, 19, 0), V(-91, 19, 0)), False)
sketch12.addGeometry(Part.LineSegment(V(18, 19, 0), V(-29, -18, 0)), False)
sketch12.addGeometry(Part.LineSegment(V(-29, -18, 0), V(66, -18, 0)), False)
sketch12.addGeometry(Part.LineSegment(V(66, -18, 0), V(18, 19, 0)), False)
sketch12.addGeometry(Part.LineSegment(V(36, 19, 0), V(84, -18, 0)), False)
sketch12.addGeometry(Part.LineSegment(V(84, -18, 0), V(131, 19, 0)), False)
sketch12.addGeometry(Part.LineSegment(V(131, 19, 0), V(36, 19, 0)), False)
sketch12.addConstraint(Sketcher.Constraint("Coincident", 0, 2, 1, 1))
sketch12.addConstraint(Sketcher.Constraint("Coincident", 1, 2, 2, 1))
sketch12.addConstraint(Sketcher.Constraint("Coincident", 2, 2, 0, 1))
sketch12.addConstraint(Sketcher.Constraint("Coincident", 3, 2, 4, 1))
sketch12.addConstraint(Sketcher.Constraint("Coincident", 4, 2, 5, 1))
sketch12.addConstraint(Sketcher.Constraint("Coincident", 5, 2, 3, 1))
sketch12.addConstraint(Sketcher.Constraint("Coincident", 6, 2, 7, 1))
sketch12.addConstraint(Sketcher.Constraint("Coincident", 7, 2, 8, 1))
sketch12.addConstraint(Sketcher.Constraint("Coincident", 8, 2, 9, 1))
sketch12.addConstraint(Sketcher.Constraint("Coincident", 9, 2, 6, 1))
sketch12.addConstraint(Sketcher.Constraint("Coincident", 10, 2, 11, 1))
sketch12.addConstraint(Sketcher.Constraint("Coincident", 11, 2, 12, 1))
sketch12.addConstraint(Sketcher.Constraint("Coincident", 12, 2, 10, 1))
sketch12.addConstraint(Sketcher.Constraint("Coincident", 13, 2, 14, 1))
sketch12.addConstraint(Sketcher.Constraint("Coincident", 14, 2, 15, 1))
sketch12.addConstraint(Sketcher.Constraint("Coincident", 15, 2, 13, 1))
sketch12.addConstraint(Sketcher.Constraint("Coincident", 16, 2, 17, 1))
sketch12.addConstraint(Sketcher.Constraint("Coincident", 17, 2, 18, 1))
sketch12.addConstraint(Sketcher.Constraint("Coincident", 18, 2, 16, 1))
sketch12.addConstraint(Sketcher.Constraint("Horizontal", 1))
sketch12.addConstraint(Sketcher.Constraint("Horizontal", 3))
sketch12.addConstraint(Sketcher.Constraint("Vertical", 4))
sketch12.addConstraint(Sketcher.Constraint("Vertical", 6))
sketch12.addConstraint(Sketcher.Constraint("Horizontal", 9))
sketch12.addConstraint(Sketcher.Constraint("Horizontal", 12))
sketch12.addConstraint(Sketcher.Constraint("Horizontal", 14))
sketch12.addConstraint(Sketcher.Constraint("Horizontal", 18))
sketch12.addConstraint(Sketcher.Constraint("Perpendicular", 7, 8))
sketch12.addConstraint(Sketcher.Constraint("Parallel", 11, 13))
sketch12.addConstraint(Sketcher.Constraint("Parallel", 2, 15))
sketch12.addConstraint(Sketcher.Constraint("Parallel", 8, 17))
sketch12.addConstraint(Sketcher.Constraint("Horizontal", 2, 2, 3, 2))
sketch12.addConstraint(Sketcher.Constraint("Horizontal", 5, 2, 7, 2))
sketch12.addConstraint(Sketcher.Constraint("Horizontal", 1, 2, 8, 2))
sketch12.addConstraint(Sketcher.Constraint("Horizontal", 9, 2, 10, 2))
sketch12.addConstraint(Sketcher.Constraint("Horizontal", 7, 2, 11, 2))
sketch12.addConstraint(Sketcher.Constraint("Horizontal", 10, 2, 13, 2))
sketch12.addConstraint(Sketcher.Constraint("Horizontal", 12, 2, 15, 2))
sketch12.addConstraint(Sketcher.Constraint("Horizontal", 14, 2, 16, 2))
sketch12.addConstraint(Sketcher.Constraint("Horizontal", 15, 2, 17, 2))
sketch12.addConstraint(Sketcher.Constraint("Vertical", 0, 2, 3, 2))
sketch12.addConstraint(Sketcher.Constraint("Equal", 14, 18))
sketch12.addConstraint(Sketcher.Constraint("Equal", 8, 10))
sketch12.addConstraint(Sketcher.Constraint("Equal", 2, 11))
sketch12.addConstraint(Sketcher.Constraint("DistanceY", 6, 1, 6, 2, Q("28.564899 mm")))
sketch12.addConstraint(Sketcher.Constraint("DistanceX", 14, 1, 14, 2, Q("95.067029 mm")))
sketch12.addConstraint(Sketcher.Constraint("DistanceY", 4, 2, 4, 1, Q("25.42527 mm")))
sketch12.addConstraint(Sketcher.Constraint("DistanceX", -1, 1, 17, 2, Q("130.822902 mm")))
sketch12.addConstraint(Sketcher.Constraint("DistanceX", 5, 2, 1, 2, Q("63.666101 mm")))
sketch12.addConstraint(Sketcher.Constraint("DistanceY", 6, 2, 2, 2, Q("8.679799 mm")))
sketch12.addConstraint(Sketcher.Constraint("DistanceX", 8, 2, 17, 2, Q("27.079699 mm")))
sketch12.addConstraint(Sketcher.Constraint("DistanceX", 18, 2, 14, 2, Q("30.2486 mm")))
sketch12.addConstraint(Sketcher.Constraint("Distance", 0, Q("60.177011 mm")))
sketch12.addConstraint(Sketcher.Constraint("Distance", 7, Q("11.052539 mm")))
sketch12.addConstraint(Sketcher.Constraint("DistanceX", 1, 2, -1, 1, Q("58.446911 mm")))
sketch12.addConstraint(Sketcher.Constraint("DistanceX", 1, 2, 10, 2, Q("14.980259 mm")))
sketch12.addConstraint(Sketcher.Constraint("DistanceY", 0, 2, -1, 1, Q("18.260795 mm")))
pocket11 = body.newObject("PartDesign::Pocket", "Pocket010")
pocket11.Profile = sketch12
pocket11.Length = 78

doc.recompute()
